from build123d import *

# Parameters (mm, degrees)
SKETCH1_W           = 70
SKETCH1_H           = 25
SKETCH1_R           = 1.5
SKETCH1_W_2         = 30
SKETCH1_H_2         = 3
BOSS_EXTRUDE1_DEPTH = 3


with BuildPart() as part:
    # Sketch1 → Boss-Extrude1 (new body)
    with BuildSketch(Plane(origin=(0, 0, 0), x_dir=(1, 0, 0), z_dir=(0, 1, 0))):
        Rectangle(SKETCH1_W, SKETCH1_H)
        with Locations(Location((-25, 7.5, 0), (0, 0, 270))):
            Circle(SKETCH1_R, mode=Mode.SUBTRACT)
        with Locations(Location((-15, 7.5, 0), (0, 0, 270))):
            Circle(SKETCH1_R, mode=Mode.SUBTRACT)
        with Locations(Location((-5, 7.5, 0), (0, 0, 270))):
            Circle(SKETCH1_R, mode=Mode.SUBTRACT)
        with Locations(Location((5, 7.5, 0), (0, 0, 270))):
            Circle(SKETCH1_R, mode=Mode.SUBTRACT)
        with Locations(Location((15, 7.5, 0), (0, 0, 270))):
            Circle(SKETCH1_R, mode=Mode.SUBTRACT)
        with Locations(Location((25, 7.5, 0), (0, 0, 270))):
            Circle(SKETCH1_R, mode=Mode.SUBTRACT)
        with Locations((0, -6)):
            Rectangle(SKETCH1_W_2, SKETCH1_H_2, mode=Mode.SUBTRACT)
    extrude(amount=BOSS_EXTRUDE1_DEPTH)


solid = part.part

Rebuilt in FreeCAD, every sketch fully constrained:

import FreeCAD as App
import Part
import Sketcher
Q = App.Units.Quantity


def add_polygon(sketch, points):
    """Adds a closed chain of lines whose ends are joined by coincident constraints."""
    first, n = sketch.GeometryCount, len(points)
    for a, b in zip(points, points[1:] + points[:1]):
        sketch.addGeometry(Part.LineSegment(App.Vector(*a, 0), App.Vector(*b, 0)), False)
    for i in range(n):
        sketch.addConstraint(Sketcher.Constraint("Coincident", first + i, 2, first + (i + 1) % n, 1))

doc = App.newDocument("Part")
body = doc.addObject("PartDesign::Body", "Body")

sketch1 = body.newObject("Sketcher::SketchObject", "Sketch")
sketch1.AttachmentSupport = (doc.getObject("XZ_Plane"), [""])
sketch1.MapMode = "FlatFace"
add_polygon(sketch1, [(-35, -12.5), (-35, 12.5), (35, 12.5), (35, -12.5)])
add_polygon(sketch1, [(15, 7.5), (-15, 7.5), (-15, 4.5), (15, 4.5)])
sketch1.addGeometry(Part.Circle(App.Vector(-25, -7.5, 0), App.Vector(0, 0, 1), 1.5), False)
sketch1.addGeometry(Part.Circle(App.Vector(-15, -7.5, 0), App.Vector(0, 0, 1), 1.5), False)
sketch1.addGeometry(Part.Circle(App.Vector(-5, -7.5, 0), App.Vector(0, 0, 1), 1.5), False)
sketch1.addGeometry(Part.Circle(App.Vector(5, -7.5, 0), App.Vector(0, 0, 1), 1.5), False)
sketch1.addGeometry(Part.Circle(App.Vector(15, -7.5, 0), App.Vector(0, 0, 1), 1.5), False)
sketch1.addGeometry(Part.Circle(App.Vector(25, -7.5, 0), App.Vector(0, 0, 1), 1.5), False)
sketch1.addConstraint([
    Sketcher.Constraint("Vertical", 0),
    Sketcher.Constraint("Horizontal", 1),
    Sketcher.Constraint("Vertical", 2),
    Sketcher.Constraint("Horizontal", 3),
    Sketcher.Constraint("Horizontal", 4),
    Sketcher.Constraint("Vertical", 5),
    Sketcher.Constraint("Horizontal", 6),
    Sketcher.Constraint("Vertical", 7),
    Sketcher.Constraint("Equal", 8, 9),
    Sketcher.Constraint("Equal", 9, 10),
    Sketcher.Constraint("Equal", 10, 11),
    Sketcher.Constraint("Equal", 11, 12),
    Sketcher.Constraint("Equal", 12, 13),
    Sketcher.Constraint("Symmetric", 0, 2, 2, 2, -1, 1),
    Sketcher.Constraint("Symmetric", 10, 3, 11, 3, -2),
    Sketcher.Constraint("Symmetric", 9, 3, 12, 3, -2),
    Sketcher.Constraint("Symmetric", 8, 3, 13, 3, -2),
    Sketcher.Constraint("Horizontal", 8, 3, 9, 3),
    Sketcher.Constraint("Horizontal", 9, 3, 10, 3),
    Sketcher.Constraint("Vertical", 9, 3, 4, 2),
    Sketcher.Constraint("Vertical", 12, 3, 6, 2),
    Sketcher.Constraint("Diameter", 8, Q("3 mm")),
    Sketcher.Constraint("DistanceX", 1, 1, 1, 2, Q("70 mm")),
    Sketcher.Constraint("DistanceX", 4, 2, 4, 1, Q("30 mm")),
    Sketcher.Constraint("DistanceY", 0, 1, 0, 2, Q("25 mm")),
    Sketcher.Constraint("DistanceY", 5, 2, 5, 1, Q("3 mm")),
    Sketcher.Constraint("DistanceX", 8, 3, -1, 1, Q("25 mm")),
    Sketcher.Constraint("DistanceX", 10, 3, -1, 1, Q("5 mm")),
    Sketcher.Constraint("DistanceY", 8, 3, 0, 2, Q("20 mm")),
    Sketcher.Constraint("DistanceY", 9, 3, 4, 2, Q("15 mm")),
])
pad1 = body.newObject("PartDesign::Pad", "Pad")
pad1.Profile = sketch1
pad1.Length = 3
pad1.Reversed = True

doc.recompute()
